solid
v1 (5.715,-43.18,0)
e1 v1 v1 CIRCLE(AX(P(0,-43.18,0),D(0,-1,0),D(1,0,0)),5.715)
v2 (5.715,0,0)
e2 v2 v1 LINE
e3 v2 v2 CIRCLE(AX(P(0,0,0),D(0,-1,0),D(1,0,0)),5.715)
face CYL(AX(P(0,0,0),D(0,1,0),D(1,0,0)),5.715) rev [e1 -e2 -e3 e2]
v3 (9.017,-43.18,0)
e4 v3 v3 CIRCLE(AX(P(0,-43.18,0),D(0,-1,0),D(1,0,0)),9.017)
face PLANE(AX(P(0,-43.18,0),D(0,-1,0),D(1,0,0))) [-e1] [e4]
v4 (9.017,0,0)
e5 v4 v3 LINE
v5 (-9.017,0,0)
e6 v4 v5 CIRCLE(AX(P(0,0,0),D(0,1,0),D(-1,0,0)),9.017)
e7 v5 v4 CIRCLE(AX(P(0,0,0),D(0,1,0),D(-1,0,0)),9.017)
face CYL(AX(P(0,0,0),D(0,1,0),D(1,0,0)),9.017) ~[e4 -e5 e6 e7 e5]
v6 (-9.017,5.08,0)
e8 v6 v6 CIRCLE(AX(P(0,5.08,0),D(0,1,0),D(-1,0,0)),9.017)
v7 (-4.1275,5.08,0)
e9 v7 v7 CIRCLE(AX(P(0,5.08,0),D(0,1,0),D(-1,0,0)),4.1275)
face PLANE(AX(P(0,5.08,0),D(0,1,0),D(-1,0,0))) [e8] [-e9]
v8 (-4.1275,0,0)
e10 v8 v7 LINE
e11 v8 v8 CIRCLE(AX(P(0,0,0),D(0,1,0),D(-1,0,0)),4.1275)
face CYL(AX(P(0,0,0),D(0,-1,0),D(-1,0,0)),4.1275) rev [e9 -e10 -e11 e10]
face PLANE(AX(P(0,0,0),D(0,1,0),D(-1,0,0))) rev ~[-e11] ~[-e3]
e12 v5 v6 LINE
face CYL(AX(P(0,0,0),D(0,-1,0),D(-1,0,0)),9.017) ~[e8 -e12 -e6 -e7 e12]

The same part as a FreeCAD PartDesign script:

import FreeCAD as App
import Part
import Sketcher
Q = App.Units.Quantity

doc = App.newDocument("Part")
params = doc.addObject("Spreadsheet::Sheet", "Params")
for row, (alias, value) in enumerate([
    ("sketch1_diameter", "0.71 in"),
    ("sketch1_diameter2", "0.325 in"),
    ("pad1_length", "0.2 in"),
    ("sketch2_diameter", "0.45 in"),
    ("sketch2_diameter2", "0.71 in"),
    ("pad2_length", "1.7 in"),
], start=1):
    params.set(f"A{row}", alias)
    params.set(f"B{row}", "=" + value)
    params.setAlias(f"B{row}", alias)

body = doc.addObject("PartDesign::Body", "Body")

# Sketch on XZ plane
sketch1 = doc.addObject("Sketcher::SketchObject", "Sketch")
body.addObject(sketch1)
sketch1.AttachmentSupport = (doc.XZ_Plane, [""])
sketch1.MapMode = "FlatFace"
sketch1.addGeometry(Part.Circle(App.Vector(0, 0, 0), App.Vector(0, 0, 1), 9.017), False)
sketch1.addGeometry(Part.Circle(App.Vector(0, 0, 0), App.Vector(0, 0, 1), 4.1275), False)
sketch1.addConstraint(Sketcher.Constraint("Coincident", 0, 3, -1, 1))
sketch1.addConstraint(Sketcher.Constraint("Coincident", 1, 3, -1, 1))
sketch1.addConstraint(Sketcher.Constraint("Diameter", 0, Q("0.71 in")))
sketch1.addConstraint(Sketcher.Constraint("Diameter", 1, Q("0.325 in")))
sketch1.setExpression("Constraints[2]", "Params.sketch1_diameter")
sketch1.setExpression("Constraints[3]", "Params.sketch1_diameter2")
pad1 = doc.addObject("PartDesign::Pad", "Pad")
body.addObject(pad1)
pad1.Profile = sketch1
pad1.setExpression("Length", "Params.pad1_length")
pad1.Reversed = True

# Sketch on XZ plane
sketch2 = doc.addObject("Sketcher::SketchObject", "Sketch001")
body.addObject(sketch2)
sketch2.AttachmentSupport = (doc.XZ_Plane, [""])
sketch2.MapMode = "FlatFace"
sketch2.addGeometry(Part.Circle(App.Vector(0, 0, 0), App.Vector(0, 0, 1), 9.017), False)
sketch2.addGeometry(Part.Circle(App.Vector(0, 0, 0), App.Vector(0, 0, 1), 5.715), False)
sketch2.addConstraint(Sketcher.Constraint("Coincident", 0, 3, -1, 1))
sketch2.addConstraint(Sketcher.Constraint("Coincident", 1, 3, -1, 1))
sketch2.addConstraint(Sketcher.Constraint("Diameter", 1, Q("0.45 in")))
sketch2.addConstraint(Sketcher.Constraint("Diameter", 0, Q("0.71 in")))
sketch2.setExpression("Constraints[2]", "Params.sketch2_diameter")
sketch2.setExpression("Constraints[3]", "Params.sketch2_diameter2")
pad2 = doc.addObject("PartDesign::Pad", "Pad001")
body.addObject(pad2)
pad2.Profile = sketch2
pad2.setExpression("Length", "Params.pad2_length")

doc.recompute()
